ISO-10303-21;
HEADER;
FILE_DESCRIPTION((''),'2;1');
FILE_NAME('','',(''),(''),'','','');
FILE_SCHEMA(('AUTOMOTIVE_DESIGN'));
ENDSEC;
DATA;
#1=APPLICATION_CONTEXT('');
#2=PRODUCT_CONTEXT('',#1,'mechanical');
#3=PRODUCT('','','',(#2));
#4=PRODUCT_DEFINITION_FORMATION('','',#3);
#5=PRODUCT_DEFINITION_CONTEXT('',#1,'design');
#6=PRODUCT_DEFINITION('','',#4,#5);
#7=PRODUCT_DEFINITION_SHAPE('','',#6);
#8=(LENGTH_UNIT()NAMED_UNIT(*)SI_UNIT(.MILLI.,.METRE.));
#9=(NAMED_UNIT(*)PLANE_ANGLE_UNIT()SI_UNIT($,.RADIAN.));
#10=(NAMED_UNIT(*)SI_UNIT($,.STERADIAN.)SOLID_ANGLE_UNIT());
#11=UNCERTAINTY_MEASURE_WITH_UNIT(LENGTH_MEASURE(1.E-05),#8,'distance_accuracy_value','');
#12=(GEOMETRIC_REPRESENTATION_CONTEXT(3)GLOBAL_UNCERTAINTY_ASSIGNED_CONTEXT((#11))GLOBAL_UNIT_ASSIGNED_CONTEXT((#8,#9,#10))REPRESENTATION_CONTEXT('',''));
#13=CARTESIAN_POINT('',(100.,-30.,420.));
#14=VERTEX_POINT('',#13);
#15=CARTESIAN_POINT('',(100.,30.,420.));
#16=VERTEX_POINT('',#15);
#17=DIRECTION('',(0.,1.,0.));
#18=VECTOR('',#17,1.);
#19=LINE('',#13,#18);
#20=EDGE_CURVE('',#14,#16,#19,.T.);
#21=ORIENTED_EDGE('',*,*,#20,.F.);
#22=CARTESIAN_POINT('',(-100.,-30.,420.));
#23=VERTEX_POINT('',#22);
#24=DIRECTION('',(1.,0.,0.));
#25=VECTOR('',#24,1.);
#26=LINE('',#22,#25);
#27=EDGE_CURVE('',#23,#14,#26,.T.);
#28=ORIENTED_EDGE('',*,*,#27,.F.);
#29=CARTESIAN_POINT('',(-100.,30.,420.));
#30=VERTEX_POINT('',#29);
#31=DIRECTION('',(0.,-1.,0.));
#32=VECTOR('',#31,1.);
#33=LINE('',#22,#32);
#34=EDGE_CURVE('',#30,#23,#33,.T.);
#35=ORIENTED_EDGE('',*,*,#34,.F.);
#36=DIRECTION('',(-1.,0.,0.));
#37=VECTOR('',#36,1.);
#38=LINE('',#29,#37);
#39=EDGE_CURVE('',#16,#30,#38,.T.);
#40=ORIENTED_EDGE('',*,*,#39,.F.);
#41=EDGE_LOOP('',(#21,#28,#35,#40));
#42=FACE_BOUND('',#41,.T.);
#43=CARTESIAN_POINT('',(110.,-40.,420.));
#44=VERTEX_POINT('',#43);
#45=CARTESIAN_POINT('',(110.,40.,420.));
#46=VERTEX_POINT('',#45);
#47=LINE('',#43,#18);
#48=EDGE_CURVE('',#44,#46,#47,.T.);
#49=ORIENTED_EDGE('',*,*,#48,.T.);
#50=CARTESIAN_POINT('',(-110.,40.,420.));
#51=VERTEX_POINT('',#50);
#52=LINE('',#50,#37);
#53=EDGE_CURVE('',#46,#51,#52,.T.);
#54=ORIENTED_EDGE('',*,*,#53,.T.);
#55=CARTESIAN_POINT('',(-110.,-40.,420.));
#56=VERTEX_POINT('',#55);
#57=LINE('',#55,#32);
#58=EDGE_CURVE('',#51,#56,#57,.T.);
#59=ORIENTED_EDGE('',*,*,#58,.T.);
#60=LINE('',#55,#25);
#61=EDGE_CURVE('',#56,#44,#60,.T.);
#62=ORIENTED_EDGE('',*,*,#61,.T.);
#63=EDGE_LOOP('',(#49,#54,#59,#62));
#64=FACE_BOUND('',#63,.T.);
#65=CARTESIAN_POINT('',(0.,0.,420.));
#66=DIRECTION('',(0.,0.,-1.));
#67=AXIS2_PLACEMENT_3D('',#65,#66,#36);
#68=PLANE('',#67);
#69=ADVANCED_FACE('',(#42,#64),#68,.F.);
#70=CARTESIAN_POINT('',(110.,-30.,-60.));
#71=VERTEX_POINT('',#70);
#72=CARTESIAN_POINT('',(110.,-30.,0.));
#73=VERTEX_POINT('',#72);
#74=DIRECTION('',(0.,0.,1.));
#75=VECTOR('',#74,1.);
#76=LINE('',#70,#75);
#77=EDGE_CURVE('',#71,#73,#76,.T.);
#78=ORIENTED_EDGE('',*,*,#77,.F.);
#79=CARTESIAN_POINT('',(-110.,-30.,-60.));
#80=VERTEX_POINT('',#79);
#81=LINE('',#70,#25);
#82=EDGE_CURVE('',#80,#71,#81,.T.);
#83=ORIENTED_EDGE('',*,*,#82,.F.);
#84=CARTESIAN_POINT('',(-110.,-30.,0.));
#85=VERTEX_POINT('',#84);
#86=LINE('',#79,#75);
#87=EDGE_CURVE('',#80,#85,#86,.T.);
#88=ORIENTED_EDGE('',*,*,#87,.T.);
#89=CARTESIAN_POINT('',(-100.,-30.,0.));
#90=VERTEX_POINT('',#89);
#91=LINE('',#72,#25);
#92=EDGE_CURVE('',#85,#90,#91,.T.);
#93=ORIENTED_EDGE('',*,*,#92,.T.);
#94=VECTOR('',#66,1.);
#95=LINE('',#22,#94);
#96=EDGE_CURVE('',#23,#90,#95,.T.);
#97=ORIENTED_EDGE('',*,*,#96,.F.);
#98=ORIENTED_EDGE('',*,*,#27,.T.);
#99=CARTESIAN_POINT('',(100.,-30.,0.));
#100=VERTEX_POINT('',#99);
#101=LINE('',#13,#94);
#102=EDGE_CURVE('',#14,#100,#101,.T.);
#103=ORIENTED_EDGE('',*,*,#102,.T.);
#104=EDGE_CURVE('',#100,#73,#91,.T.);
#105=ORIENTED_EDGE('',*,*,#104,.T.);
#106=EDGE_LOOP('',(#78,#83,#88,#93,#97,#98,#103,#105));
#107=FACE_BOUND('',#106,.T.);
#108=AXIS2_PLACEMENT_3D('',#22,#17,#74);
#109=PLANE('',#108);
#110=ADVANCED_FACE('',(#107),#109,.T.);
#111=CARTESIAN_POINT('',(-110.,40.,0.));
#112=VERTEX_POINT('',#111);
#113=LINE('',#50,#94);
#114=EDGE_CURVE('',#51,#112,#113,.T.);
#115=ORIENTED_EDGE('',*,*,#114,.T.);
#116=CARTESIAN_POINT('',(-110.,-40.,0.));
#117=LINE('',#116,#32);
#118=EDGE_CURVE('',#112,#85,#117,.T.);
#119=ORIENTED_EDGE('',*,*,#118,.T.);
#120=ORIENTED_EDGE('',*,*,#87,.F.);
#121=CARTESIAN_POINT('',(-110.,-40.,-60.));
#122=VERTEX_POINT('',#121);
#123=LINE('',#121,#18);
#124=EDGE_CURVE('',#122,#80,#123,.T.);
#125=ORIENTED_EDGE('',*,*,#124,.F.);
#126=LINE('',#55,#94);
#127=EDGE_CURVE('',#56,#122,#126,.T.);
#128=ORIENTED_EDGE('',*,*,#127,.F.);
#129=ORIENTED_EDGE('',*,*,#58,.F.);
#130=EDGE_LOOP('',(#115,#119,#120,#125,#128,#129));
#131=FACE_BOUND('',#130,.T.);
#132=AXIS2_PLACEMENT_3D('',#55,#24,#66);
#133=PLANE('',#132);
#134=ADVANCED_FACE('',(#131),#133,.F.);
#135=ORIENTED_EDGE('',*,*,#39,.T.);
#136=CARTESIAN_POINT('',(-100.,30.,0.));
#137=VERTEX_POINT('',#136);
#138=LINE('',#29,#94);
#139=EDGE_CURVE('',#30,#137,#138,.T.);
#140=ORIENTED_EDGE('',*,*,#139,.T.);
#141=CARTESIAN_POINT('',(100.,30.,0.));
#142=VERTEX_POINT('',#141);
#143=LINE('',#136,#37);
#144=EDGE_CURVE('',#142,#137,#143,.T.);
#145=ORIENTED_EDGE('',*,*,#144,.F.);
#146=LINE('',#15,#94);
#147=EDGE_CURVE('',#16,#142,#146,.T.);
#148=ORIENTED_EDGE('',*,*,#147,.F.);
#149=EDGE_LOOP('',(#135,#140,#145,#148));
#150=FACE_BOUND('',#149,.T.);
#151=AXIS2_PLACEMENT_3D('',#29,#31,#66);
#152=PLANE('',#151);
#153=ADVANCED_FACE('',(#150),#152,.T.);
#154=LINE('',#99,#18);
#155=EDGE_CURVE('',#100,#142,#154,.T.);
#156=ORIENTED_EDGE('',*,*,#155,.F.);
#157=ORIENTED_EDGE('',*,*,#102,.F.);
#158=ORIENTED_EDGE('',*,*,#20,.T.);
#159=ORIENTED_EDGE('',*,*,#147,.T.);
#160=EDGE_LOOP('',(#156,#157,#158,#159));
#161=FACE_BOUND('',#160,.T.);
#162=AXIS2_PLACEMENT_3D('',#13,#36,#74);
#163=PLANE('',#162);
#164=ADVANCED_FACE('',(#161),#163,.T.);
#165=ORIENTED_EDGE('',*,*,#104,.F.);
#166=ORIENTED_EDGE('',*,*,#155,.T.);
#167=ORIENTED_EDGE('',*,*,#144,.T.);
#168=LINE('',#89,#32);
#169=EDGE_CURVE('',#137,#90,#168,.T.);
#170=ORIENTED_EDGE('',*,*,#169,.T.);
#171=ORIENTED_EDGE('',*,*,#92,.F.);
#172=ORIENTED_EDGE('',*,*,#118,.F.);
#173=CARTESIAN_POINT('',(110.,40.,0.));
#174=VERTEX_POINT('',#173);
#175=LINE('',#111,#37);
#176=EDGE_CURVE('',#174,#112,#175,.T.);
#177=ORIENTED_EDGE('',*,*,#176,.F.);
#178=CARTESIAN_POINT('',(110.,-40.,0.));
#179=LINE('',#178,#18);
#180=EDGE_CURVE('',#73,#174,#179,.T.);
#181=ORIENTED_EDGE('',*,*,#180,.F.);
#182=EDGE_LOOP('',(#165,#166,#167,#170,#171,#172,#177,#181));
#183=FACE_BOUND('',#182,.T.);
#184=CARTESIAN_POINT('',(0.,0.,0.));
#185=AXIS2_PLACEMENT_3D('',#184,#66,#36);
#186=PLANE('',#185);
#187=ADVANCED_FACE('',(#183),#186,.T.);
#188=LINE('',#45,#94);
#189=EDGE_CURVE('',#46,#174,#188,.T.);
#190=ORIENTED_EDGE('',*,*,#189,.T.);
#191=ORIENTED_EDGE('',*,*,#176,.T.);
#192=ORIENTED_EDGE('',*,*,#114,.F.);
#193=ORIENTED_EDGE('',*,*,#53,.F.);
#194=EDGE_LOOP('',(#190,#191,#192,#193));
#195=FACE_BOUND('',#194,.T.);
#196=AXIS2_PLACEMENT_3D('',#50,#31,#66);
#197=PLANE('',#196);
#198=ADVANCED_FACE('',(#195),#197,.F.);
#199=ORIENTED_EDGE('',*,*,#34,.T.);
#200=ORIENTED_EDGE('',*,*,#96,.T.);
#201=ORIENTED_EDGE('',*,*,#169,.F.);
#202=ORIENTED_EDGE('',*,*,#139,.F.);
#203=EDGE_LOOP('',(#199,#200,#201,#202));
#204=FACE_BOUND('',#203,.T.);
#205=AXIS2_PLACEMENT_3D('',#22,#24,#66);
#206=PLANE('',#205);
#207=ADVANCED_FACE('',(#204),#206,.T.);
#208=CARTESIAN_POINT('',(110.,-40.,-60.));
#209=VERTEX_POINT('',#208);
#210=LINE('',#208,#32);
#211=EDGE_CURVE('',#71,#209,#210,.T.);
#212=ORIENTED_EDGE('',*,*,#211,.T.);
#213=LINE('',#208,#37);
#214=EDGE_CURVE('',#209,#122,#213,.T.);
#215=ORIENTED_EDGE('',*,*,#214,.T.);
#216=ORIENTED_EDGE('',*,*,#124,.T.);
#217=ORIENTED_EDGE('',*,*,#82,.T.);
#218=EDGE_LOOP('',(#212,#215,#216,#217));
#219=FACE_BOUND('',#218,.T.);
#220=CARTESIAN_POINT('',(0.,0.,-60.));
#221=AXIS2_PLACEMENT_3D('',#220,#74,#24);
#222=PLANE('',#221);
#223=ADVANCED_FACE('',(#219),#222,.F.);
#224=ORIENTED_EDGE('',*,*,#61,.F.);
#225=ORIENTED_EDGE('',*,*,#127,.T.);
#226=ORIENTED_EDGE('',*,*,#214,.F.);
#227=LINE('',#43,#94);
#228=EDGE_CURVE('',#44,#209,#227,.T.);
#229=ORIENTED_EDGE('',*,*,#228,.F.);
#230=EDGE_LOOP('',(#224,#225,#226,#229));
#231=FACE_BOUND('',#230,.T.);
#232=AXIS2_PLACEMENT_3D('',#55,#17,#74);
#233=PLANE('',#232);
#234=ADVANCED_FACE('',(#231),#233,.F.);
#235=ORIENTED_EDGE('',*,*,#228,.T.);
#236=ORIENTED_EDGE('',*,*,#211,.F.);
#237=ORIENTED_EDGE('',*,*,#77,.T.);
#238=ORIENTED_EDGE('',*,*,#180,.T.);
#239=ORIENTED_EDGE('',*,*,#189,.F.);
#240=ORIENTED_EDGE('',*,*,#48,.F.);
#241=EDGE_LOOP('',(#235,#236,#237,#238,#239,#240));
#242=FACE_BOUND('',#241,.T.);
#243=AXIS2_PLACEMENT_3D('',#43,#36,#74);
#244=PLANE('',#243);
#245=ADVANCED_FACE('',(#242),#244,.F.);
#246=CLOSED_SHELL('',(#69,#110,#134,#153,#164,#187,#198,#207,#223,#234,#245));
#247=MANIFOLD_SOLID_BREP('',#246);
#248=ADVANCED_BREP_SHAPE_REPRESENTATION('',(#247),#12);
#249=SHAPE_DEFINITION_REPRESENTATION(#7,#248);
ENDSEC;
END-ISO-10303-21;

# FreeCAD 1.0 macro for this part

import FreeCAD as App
import Part
import Sketcher

doc = App.newDocument("Part")
body = doc.addObject("PartDesign::Body", "Body")

sketch1 = body.newObject("Sketcher::SketchObject", "Sketch")
sketch1.AttachmentSupport = (doc.getObject("XY_Plane"), [""])
sketch1.MapMode = "FlatFace"
sketch1.addGeometry([
    Part.LineSegment(App.Vector(-110, 40, 0), App.Vector(-110, -40, 0)),
    Part.LineSegment(App.Vector(-110, -40, 0), App.Vector(110, -40, 0)),
    Part.LineSegment(App.Vector(110, -40, 0), App.Vector(110, 40, 0)),
    Part.LineSegment(App.Vector(110, 40, 0), App.Vector(-110, 40, 0)),
    Part.LineSegment(App.Vector(100, -30, 0), App.Vector(-100, -30, 0)),
    Part.LineSegment(App.Vector(-100, -30, 0), App.Vector(-100, 30, 0)),
    Part.LineSegment(App.Vector(-100, 30, 0), App.Vector(100, 30, 0)),
    Part.LineSegment(App.Vector(100, 30, 0), App.Vector(100, -30, 0)),
], False)
sketch1.addConstraint([
    Sketcher.Constraint("Coincident", 0, 2, 1, 1),
    Sketcher.Constraint("Coincident", 1, 2, 2, 1),
    Sketcher.Constraint("Coincident", 2, 2, 3, 1),
    Sketcher.Constraint("Coincident", 3, 2, 0, 1),
    Sketcher.Constraint("Coincident", 4, 2, 5, 1),
    Sketcher.Constraint("Coincident", 5, 2, 6, 1),
    Sketcher.Constraint("Coincident", 6, 2, 7, 1),
    Sketcher.Constraint("Coincident", 7, 2, 4, 1),
    Sketcher.Constraint("Vertical", 0),
    Sketcher.Constraint("Horizontal", 1),
    Sketcher.Constraint("Vertical", 2),
    Sketcher.Constraint("Horizontal", 3),
    Sketcher.Constraint("Horizontal", 4),
    Sketcher.Constraint("Vertical", 5),
    Sketcher.Constraint("Horizontal", 6),
    Sketcher.Constraint("Vertical", 7),
    Sketcher.Constraint("Symmetric", 0, 2, 2, 2, -1, 1),
    Sketcher.Constraint("Symmetric", 4, 2, 6, 2, -1, 1),
    Sketcher.Constraint("DistanceX", 1, 1, 1, 2, 220.0),
    Sketcher.Constraint("DistanceX", 4, 2, 4, 1, 200.0),
    Sketcher.Constraint("DistanceY", 0, 2, 0, 1, 80.0),
    Sketcher.Constraint("DistanceY", 5, 1, 5, 2, 60.0),
])
pad1 = body.newObject("PartDesign::Pad", "Pad")
pad1.Profile = sketch1
pad1.Length = 420

sketch2 = body.newObject("Sketcher::SketchObject", "Sketch001")
sketch2.AttachmentSupport = (doc.getObject("XY_Plane"), [""])
sketch2.MapMode = "FlatFace"
sketch2.addGeometry([
    Part.LineSegment(App.Vector(110, -30, 0), App.Vector(110, -40, 0)),
    Part.LineSegment(App.Vector(110, -40, 0), App.Vector(-110, -40, 0)),
    Part.LineSegment(App.Vector(-110, -40, 0), App.Vector(-110, -30, 0)),
    Part.LineSegment(App.Vector(-110, -30, 0), App.Vector(110, -30, 0)),
], False)
sketch2.addConstraint([
    Sketcher.Constraint("Coincident", 0, 2, 1, 1),
    Sketcher.Constraint("Coincident", 1, 2, 2, 1),
    Sketcher.Constraint("Coincident", 2, 2, 3, 1),
    Sketcher.Constraint("Coincident", 3, 2, 0, 1),
    Sketcher.Constraint("Vertical", 0),
    Sketcher.Constraint("Horizontal", 1),
    Sketcher.Constraint("Vertical", 2),
    Sketcher.Constraint("Horizontal", 3),
    Sketcher.Constraint("DistanceX", 1, 2, 1, 1, 220.0),
    Sketcher.Constraint("DistanceY", 0, 2, 0, 1, 10.0),
    Sketcher.Constraint("DistanceX", -1, 1, 0, 2, 110.0),
    Sketcher.Constraint("DistanceY", 0, 2, -1, 1, 40.0),
])
pad2 = body.newObject("PartDesign::Pad", "Pad001")
pad2.Profile = sketch2
pad2.Length = 60
pad2.Reversed = True

doc.recompute()
